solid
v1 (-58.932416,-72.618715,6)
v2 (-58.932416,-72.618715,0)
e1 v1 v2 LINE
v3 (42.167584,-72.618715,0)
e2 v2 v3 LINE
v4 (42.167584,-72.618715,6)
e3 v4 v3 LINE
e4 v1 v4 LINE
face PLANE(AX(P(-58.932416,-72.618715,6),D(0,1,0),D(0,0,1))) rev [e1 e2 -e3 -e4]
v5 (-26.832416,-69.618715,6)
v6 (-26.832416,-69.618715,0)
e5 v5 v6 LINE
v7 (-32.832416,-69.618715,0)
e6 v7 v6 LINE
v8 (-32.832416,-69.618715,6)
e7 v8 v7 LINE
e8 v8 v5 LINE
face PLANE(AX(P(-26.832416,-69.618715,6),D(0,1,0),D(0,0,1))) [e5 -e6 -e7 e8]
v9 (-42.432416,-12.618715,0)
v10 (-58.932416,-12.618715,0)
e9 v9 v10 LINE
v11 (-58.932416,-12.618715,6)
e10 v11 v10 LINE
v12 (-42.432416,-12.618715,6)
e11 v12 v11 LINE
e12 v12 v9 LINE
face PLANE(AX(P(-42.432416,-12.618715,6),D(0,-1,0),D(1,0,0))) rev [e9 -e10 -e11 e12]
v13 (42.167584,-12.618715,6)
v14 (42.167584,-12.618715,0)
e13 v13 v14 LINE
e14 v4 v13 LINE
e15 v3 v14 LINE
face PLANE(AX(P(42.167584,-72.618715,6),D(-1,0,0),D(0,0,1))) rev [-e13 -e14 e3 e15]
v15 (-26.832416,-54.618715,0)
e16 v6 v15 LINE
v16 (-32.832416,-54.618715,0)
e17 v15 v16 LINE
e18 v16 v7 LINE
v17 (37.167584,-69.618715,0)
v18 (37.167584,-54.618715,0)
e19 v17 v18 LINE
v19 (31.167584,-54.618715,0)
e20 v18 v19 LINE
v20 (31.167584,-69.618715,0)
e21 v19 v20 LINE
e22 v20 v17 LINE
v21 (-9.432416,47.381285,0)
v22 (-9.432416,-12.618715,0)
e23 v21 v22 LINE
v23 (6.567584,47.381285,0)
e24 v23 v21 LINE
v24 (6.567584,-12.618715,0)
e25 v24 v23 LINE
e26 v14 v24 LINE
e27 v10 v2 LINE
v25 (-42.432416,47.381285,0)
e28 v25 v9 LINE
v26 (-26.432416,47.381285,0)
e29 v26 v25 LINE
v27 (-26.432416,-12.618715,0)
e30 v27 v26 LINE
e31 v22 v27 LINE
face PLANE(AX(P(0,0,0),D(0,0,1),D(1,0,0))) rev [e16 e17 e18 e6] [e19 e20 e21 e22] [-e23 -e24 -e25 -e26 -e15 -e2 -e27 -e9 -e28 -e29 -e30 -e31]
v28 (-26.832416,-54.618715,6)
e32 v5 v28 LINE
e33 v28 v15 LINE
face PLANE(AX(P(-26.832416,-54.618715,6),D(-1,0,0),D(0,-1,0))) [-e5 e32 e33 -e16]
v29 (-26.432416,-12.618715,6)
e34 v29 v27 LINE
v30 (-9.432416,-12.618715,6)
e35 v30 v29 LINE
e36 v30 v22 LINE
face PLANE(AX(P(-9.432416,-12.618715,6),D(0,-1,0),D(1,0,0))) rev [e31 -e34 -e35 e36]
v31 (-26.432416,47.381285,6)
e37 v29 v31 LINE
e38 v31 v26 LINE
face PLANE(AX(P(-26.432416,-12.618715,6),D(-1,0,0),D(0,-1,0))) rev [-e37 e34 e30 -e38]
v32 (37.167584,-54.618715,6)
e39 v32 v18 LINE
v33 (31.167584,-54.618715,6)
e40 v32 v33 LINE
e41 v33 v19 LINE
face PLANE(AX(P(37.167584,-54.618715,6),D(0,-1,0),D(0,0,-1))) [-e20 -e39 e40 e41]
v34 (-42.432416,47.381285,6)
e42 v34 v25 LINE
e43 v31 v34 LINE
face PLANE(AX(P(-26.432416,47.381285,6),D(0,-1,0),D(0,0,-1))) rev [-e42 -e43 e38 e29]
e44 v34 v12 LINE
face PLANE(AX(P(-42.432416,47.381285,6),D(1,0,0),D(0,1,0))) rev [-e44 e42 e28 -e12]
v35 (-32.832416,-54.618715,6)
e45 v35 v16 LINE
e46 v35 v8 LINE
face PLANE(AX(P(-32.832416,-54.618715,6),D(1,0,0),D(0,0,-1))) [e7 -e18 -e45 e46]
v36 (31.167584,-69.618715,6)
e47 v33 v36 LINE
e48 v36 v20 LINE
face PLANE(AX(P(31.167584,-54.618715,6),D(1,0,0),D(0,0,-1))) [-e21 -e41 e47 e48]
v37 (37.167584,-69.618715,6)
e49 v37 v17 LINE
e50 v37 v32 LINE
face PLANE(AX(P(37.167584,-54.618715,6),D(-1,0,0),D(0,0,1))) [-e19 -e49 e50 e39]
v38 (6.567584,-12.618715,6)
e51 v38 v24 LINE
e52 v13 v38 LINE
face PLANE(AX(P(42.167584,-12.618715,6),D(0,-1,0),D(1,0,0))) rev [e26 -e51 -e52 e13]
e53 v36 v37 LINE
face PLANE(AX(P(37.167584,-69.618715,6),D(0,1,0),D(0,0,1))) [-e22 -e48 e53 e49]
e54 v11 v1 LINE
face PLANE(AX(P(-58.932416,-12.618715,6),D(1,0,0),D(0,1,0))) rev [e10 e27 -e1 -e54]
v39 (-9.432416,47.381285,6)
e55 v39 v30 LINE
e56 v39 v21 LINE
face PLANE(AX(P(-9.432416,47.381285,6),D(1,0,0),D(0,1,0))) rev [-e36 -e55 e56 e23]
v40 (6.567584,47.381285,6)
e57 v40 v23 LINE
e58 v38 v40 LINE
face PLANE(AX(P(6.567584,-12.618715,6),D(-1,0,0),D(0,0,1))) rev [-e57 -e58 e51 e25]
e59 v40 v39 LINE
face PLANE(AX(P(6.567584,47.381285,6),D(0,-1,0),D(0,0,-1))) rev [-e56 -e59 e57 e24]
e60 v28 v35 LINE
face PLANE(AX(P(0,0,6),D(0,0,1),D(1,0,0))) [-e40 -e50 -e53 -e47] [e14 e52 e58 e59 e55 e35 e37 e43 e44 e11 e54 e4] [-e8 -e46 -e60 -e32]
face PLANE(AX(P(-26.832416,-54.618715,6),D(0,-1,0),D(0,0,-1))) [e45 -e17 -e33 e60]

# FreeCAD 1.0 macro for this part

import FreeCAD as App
import Part
import Sketcher
from FreeCAD import Vector
Q = App.Units.Quantity

doc = App.newDocument("Part")
body = doc.addObject("PartDesign::Body", "Body")

# Sketch on XY plane
sketch1 = body.newObject("Sketcher::SketchObject", "Sketch")
sketch1.AttachmentSupport = (doc.getObject("XY_Plane"), [""])
sketch1.MapMode = "FlatFace"
sketch1.addGeometry(Part.LineSegment(Vector(42, -73, 0), Vector(42, -13, 0)), False)
sketch1.addGeometry(Part.LineSegment(Vector(42, -13, 0), Vector(7, -13, 0)), False)
sketch1.addGeometry(Part.LineSegment(Vector(7, -13, 0), Vector(7, 47, 0)), False)
sketch1.addGeometry(Part.LineSegment(Vector(7, 47, 0), Vector(-9, 47, 0)), False)
sketch1.addGeometry(Part.LineSegment(Vector(-9, 47, 0), Vector(-9, -13, 0)), False)
sketch1.addGeometry(Part.LineSegment(Vector(-9, -13, 0), Vector(-26, -13, 0)), False)
sketch1.addGeometry(Part.LineSegment(Vector(-26, -13, 0), Vector(-26, 47, 0)), False)
sketch1.addGeometry(Part.LineSegment(Vector(-26, 47, 0), Vector(-42, 47, 0)), False)
sketch1.addGeometry(Part.LineSegment(Vector(-42, 47, 0), Vector(-42, -13, 0)), False)
sketch1.addGeometry(Part.LineSegment(Vector(-42, -13, 0), Vector(-59, -13, 0)), False)
sketch1.addGeometry(Part.LineSegment(Vector(-59, -13, 0), Vector(-59, -73, 0)), False)
sketch1.addGeometry(Part.LineSegment(Vector(-59, -73, 0), Vector(42, -73, 0)), False)
sketch1.addGeometry(Part.LineSegment(Vector(-27, -70, 0), Vector(-33, -70, 0)), False)
sketch1.addGeometry(Part.LineSegment(Vector(-33, -70, 0), Vector(-33, -55, 0)), False)
sketch1.addGeometry(Part.LineSegment(Vector(-33, -55, 0), Vector(-27, -55, 0)), False)
sketch1.addGeometry(Part.LineSegment(Vector(-27, -55, 0), Vector(-27, -70, 0)), False)
sketch1.addGeometry(Part.LineSegment(Vector(37, -70, 0), Vector(31, -70, 0)), False)
sketch1.addGeometry(Part.LineSegment(Vector(31, -70, 0), Vector(31, -55, 0)), False)
sketch1.addGeometry(Part.LineSegment(Vector(31, -55, 0), Vector(37, -55, 0)), False)
sketch1.addGeometry(Part.LineSegment(Vector(37, -55, 0), Vector(37, -70, 0)), False)
sketch1.addConstraint(Sketcher.Constraint("Coincident", 0, 2, 1, 1))
sketch1.addConstraint(Sketcher.Constraint("Coincident", 1, 2, 2, 1))
sketch1.addConstraint(Sketcher.Constraint("Coincident", 2, 2, 3, 1))
sketch1.addConstraint(Sketcher.Constraint("Coincident", 3, 2, 4, 1))
sketch1.addConstraint(Sketcher.Constraint("Coincident", 4, 2, 5, 1))
sketch1.addConstraint(Sketcher.Constraint("Coincident", 5, 2, 6, 1))
sketch1.addConstraint(Sketcher.Constraint("Coincident", 6, 2, 7, 1))
sketch1.addConstraint(Sketcher.Constraint("Coincident", 7, 2, 8, 1))
sketch1.addConstraint(Sketcher.Constraint("Coincident", 8, 2, 9, 1))
sketch1.addConstraint(Sketcher.Constraint("Coincident", 9, 2, 10, 1))
sketch1.addConstraint(Sketcher.Constraint("Coincident", 10, 2, 11, 1))
sketch1.addConstraint(Sketcher.Constraint("Coincident", 11, 2, 0, 1))
sketch1.addConstraint(Sketcher.Constraint("Coincident", 12, 2, 13, 1))
sketch1.addConstraint(Sketcher.Constraint("Coincident", 13, 2, 14, 1))
sketch1.addConstraint(Sketcher.Constraint("Coincident", 14, 2, 15, 1))
sketch1.addConstraint(Sketcher.Constraint("Coincident", 15, 2, 12, 1))
sketch1.addConstraint(Sketcher.Constraint("Coincident", 16, 2, 17, 1))
sketch1.addConstraint(Sketcher.Constraint("Coincident", 17, 2, 18, 1))
sketch1.addConstraint(Sketcher.Constraint("Coincident", 18, 2, 19, 1))
sketch1.addConstraint(Sketcher.Constraint("Coincident", 19, 2, 16, 1))
sketch1.addConstraint(Sketcher.Constraint("Vertical", 0))
sketch1.addConstraint(Sketcher.Constraint("Horizontal", 1))
sketch1.addConstraint(Sketcher.Constraint("Vertical", 2))
sketch1.addConstraint(Sketcher.Constraint("Horizontal", 3))
sketch1.addConstraint(Sketcher.Constraint("Vertical", 4))
sketch1.addConstraint(Sketcher.Constraint("Horizontal", 5))
sketch1.addConstraint(Sketcher.Constraint("Vertical", 6))
sketch1.addConstraint(Sketcher.Constraint("Horizontal", 7))
sketch1.addConstraint(Sketcher.Constraint("Vertical", 8))
sketch1.addConstraint(Sketcher.Constraint("Horizontal", 9))
sketch1.addConstraint(Sketcher.Constraint("Vertical", 10))
sketch1.addConstraint(Sketcher.Constraint("Horizontal", 11))
sketch1.addConstraint(Sketcher.Constraint("Horizontal", 12))
sketch1.addConstraint(Sketcher.Constraint("Vertical", 13))
sketch1.addConstraint(Sketcher.Constraint("Horizontal", 14))
sketch1.addConstraint(Sketcher.Constraint("Vertical", 15))
sketch1.addConstraint(Sketcher.Constraint("Horizontal", 16))
sketch1.addConstraint(Sketcher.Constraint("Vertical", 17))
sketch1.addConstraint(Sketcher.Constraint("Horizontal", 18))
sketch1.addConstraint(Sketcher.Constraint("Vertical", 19))
sketch1.addConstraint(Sketcher.Constraint("Horizontal", 1, 2, 4, 2))
sketch1.addConstraint(Sketcher.Constraint("Horizontal", 3, 2, 6, 2))
sketch1.addConstraint(Sketcher.Constraint("Horizontal", 5, 2, 8, 2))
sketch1.addConstraint(Sketcher.Constraint("Horizontal", 15, 2, 16, 2))
sketch1.addConstraint(Sketcher.Constraint("Horizontal", 14, 2, 17, 2))
sketch1.addConstraint(Sketcher.Constraint("Equal", 3, 7))
sketch1.addConstraint(Sketcher.Constraint("Equal", 14, 16))
sketch1.addConstraint(Sketcher.Constraint("Equal", 0, 2))
sketch1.addConstraint(Sketcher.Constraint("DistanceX", 3, 2, 3, 1, Q("16 mm")))
sketch1.addConstraint(Sketcher.Constraint("DistanceX", 5, 2, 5, 1, Q("17 mm")))
sketch1.addConstraint(Sketcher.Constraint("DistanceX", 12, 2, 12, 1, Q("6 mm")))
sketch1.addConstraint(Sketcher.Constraint("DistanceY", 0, 1, 0, 2, Q("60 mm")))
sketch1.addConstraint(Sketcher.Constraint("DistanceY", 13, 1, 13, 2, Q("15 mm")))
sketch1.addConstraint(Sketcher.Constraint("DistanceX", 1, 2, 1, 1, Q("35.6 mm")))
sketch1.addConstraint(Sketcher.Constraint("DistanceX", 9, 2, 9, 1, Q("16.5 mm")))
sketch1.addConstraint(Sketcher.Constraint("DistanceY", 10, 2, 12, 2, Q("3 mm")))
sketch1.addConstraint(Sketcher.Constraint("DistanceX", 16, 2, 11, 2, Q("11 mm")))
sketch1.addConstraint(Sketcher.Constraint("DistanceX", 15, 2, 16, 2, Q("58 mm")))
sketch1.addConstraint(Sketcher.Constraint("DistanceX", -1, 1, 0, 2, Q("42.167584 mm")))
sketch1.addConstraint(Sketcher.Constraint("DistanceY", 0, 2, -1, 1, Q("12.618715 mm")))
pad1 = body.newObject("PartDesign::Pad", "Pad")
pad1.Profile = sketch1
pad1.Length = 6

doc.recompute()
